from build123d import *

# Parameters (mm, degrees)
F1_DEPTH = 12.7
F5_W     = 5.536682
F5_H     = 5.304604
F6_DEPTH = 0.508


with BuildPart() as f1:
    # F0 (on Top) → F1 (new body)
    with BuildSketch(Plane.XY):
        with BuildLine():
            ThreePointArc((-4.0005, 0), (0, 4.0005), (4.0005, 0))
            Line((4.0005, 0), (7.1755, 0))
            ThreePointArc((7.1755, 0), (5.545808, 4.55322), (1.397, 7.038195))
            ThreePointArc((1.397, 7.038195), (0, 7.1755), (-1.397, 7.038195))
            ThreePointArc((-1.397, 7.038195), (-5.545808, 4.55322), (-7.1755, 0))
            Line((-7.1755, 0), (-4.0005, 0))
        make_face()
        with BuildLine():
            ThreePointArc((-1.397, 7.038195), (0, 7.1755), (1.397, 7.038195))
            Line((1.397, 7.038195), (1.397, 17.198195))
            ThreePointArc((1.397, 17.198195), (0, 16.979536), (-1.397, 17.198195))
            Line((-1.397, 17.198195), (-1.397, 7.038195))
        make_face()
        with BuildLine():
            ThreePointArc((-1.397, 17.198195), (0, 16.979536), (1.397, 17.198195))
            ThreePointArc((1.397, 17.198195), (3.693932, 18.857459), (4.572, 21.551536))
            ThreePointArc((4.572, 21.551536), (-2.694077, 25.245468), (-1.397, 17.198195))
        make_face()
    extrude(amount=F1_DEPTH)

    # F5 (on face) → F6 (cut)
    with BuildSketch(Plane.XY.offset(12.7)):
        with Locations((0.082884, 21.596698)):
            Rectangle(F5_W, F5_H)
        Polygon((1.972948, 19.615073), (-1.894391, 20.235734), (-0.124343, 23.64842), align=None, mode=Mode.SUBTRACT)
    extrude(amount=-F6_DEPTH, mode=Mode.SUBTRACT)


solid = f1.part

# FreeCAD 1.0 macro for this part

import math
import FreeCAD as App
import Part
import Sketcher

V = App.Vector
Q = App.Units.Quantity


def add_polygon(sketch, points):
    """Adds a closed chain of lines whose ends are joined by coincident constraints."""
    first, n = sketch.GeometryCount, len(points)
    for a, b in zip(points, points[1:] + points[:1]):
        sketch.addGeometry(Part.LineSegment(App.Vector(*a, 0), App.Vector(*b, 0)), False)
    for i in range(n):
        sketch.addConstraint(Sketcher.Constraint("Coincident", first + i, 2, first + (i + 1) % n, 1))

doc = App.newDocument("Part")
body = doc.addObject("PartDesign::Body", "Body")

# Sketch on XY plane
sketch1 = doc.addObject("Sketcher::SketchObject", "Sketch")
body.addObject(sketch1)
sketch1.AttachmentSupport = (doc.XY_Plane, [""])
sketch1.MapMode = "FlatFace"
sketch1.addGeometry([
    Part.ArcOfCircle(Part.Circle(V(0, 0, 0), V(0, 0, 1), 4), math.radians(0), math.radians(180)),  # 0
    Part.LineSegment(V(4, 0, 0), V(7.2, 0, 0)),  # 1
    Part.ArcOfCircle(Part.Circle(V(0, 0, 0), V(0, 0, 1), 7.2), math.radians(0), math.radians(79)),  # 2
    Part.LineSegment(V(1.4, 7, 0), V(1.4, 17.2, 0)),  # 3
    Part.ArcOfCircle(Part.Circle(V(0, 21.6, 0), V(0, 0, 1), 4.6), math.radians(-72), math.radians(0)),  # 4
    Part.ArcOfCircle(Part.Circle(V(0, 21.6, 0), V(0, 0, 1), 4.6), math.radians(0), math.radians(252)),  # 5
    Part.LineSegment(V(-1.4, 17.2, 0), V(-1.4, 7, 0)),  # 6
    Part.ArcOfCircle(Part.Circle(V(0, 0, 0), V(0, 0, 1), 7.2), math.radians(101), math.radians(180)),  # 7
    Part.LineSegment(V(-7.2, 0, 0), V(-4, 0, 0)),  # 8
], False)
sketch1.addConstraint([
    Sketcher.Constraint("Coincident", 0, 1, 1, 1),
    Sketcher.Constraint("Coincident", 1, 2, 2, 1),
    Sketcher.Constraint("Coincident", 2, 2, 3, 1),
    Sketcher.Constraint("Coincident", 3, 2, 4, 1),
    Sketcher.Constraint("Tangent", 4, 2, 5, 1),
    Sketcher.Constraint("Coincident", 5, 2, 6, 1),
    Sketcher.Constraint("Coincident", 6, 2, 7, 1),
    Sketcher.Constraint("Coincident", 7, 2, 8, 1),
    Sketcher.Constraint("Coincident", 8, 2, 0, 2),
    Sketcher.Constraint("Horizontal", 1),
    Sketcher.Constraint("Vertical", 3),
    Sketcher.Constraint("Vertical", 6),
    Sketcher.Constraint("Horizontal", 8),
    Sketcher.Constraint("Coincident", 0, 3, -1, 1),
    Sketcher.Constraint("Coincident", 2, 3, -1, 1),
    Sketcher.Constraint("Coincident", 7, 3, -1, 1),
    Sketcher.Constraint("Equal", 4, 5),
    Sketcher.Constraint("Equal", 2, 7),
    Sketcher.Constraint("Symmetric", 3, 2, 5, 2, -2),
    Sketcher.Constraint("PointOnObject", 0, 1, -1),
    Sketcher.Constraint("PointOnObject", 7, 2, -1),
    Sketcher.Constraint("Horizontal", 5, 3, 4, 2),
    Sketcher.Constraint("Radius", 4, Q("0.18 in")),
    Sketcher.Constraint("DistanceY", 3, 1, 3, 2, Q("0.4 in")),
    Sketcher.Constraint("Radius", 0, Q("0.1575 in")),
    Sketcher.Constraint("Radius", 2, Q("0.2825 in")),
    Sketcher.Constraint("DistanceX", 5, 2, 3, 2, Q("0.11 in")),
])
pad1 = doc.addObject("PartDesign::Pad", "Pad")
body.addObject(pad1)
pad1.Profile = sketch1
pad1.Length = Q("0.5 in")

# Sketch on XY plane
sketch2 = doc.addObject("Sketcher::SketchObject", "Sketch001")
body.addObject(sketch2)
sketch2.AttachmentSupport = (doc.XY_Plane, [""])
sketch2.MapMode = "FlatFace"
sketch2.AttachmentOffset = App.Placement(V(0, 0, 0.5 * 25.4), App.Rotation())
add_polygon(sketch2, [(-2.7, 24.2), (-2.7, 18.9), (2.9, 18.9), (2.9, 24.2)])  # lines 0-3
add_polygon(sketch2, [(-0.1, 23.6), (2, 19.6), (-1.9, 20.2)])  # lines 4-6
sketch2.addConstraint([
    Sketcher.Constraint("Vertical", 0),
    Sketcher.Constraint("Horizontal", 1),
    Sketcher.Constraint("Vertical", 2),
    Sketcher.Constraint("Horizontal", 3),
    Sketcher.Constraint("DistanceY", -1, 1, 2, 2, 24.249),
    Sketcher.Constraint("Distance", 6, 3.844411),
    Sketcher.Constraint("DistanceX", 1, 1, 1, 2, 5.536682),
    Sketcher.Constraint("DistanceY", 0, 2, 0, 1, 5.304604),
    Sketcher.Constraint("DistanceX", 5, 2, -1, 1, 1.894391),
    Sketcher.Constraint("DistanceY", -1, 1, 6, 2, 23.64842),
    Sketcher.Constraint("DistanceX", 5, 2, 4, 2, 3.867339),
    Sketcher.Constraint("DistanceY", 4, 2, 5, 2, 0.620661),
    Sketcher.Constraint("DistanceX", 6, 2, 2, 2, 2.975568),
    Sketcher.Constraint("DistanceX", 6, 2, 4, 2, 2.097291),
])
pocket1 = doc.addObject("PartDesign::Pocket", "Pocket")
body.addObject(pocket1)
pocket1.Profile = sketch2
pocket1.Length = Q("0.02 in")

doc.recompute()
